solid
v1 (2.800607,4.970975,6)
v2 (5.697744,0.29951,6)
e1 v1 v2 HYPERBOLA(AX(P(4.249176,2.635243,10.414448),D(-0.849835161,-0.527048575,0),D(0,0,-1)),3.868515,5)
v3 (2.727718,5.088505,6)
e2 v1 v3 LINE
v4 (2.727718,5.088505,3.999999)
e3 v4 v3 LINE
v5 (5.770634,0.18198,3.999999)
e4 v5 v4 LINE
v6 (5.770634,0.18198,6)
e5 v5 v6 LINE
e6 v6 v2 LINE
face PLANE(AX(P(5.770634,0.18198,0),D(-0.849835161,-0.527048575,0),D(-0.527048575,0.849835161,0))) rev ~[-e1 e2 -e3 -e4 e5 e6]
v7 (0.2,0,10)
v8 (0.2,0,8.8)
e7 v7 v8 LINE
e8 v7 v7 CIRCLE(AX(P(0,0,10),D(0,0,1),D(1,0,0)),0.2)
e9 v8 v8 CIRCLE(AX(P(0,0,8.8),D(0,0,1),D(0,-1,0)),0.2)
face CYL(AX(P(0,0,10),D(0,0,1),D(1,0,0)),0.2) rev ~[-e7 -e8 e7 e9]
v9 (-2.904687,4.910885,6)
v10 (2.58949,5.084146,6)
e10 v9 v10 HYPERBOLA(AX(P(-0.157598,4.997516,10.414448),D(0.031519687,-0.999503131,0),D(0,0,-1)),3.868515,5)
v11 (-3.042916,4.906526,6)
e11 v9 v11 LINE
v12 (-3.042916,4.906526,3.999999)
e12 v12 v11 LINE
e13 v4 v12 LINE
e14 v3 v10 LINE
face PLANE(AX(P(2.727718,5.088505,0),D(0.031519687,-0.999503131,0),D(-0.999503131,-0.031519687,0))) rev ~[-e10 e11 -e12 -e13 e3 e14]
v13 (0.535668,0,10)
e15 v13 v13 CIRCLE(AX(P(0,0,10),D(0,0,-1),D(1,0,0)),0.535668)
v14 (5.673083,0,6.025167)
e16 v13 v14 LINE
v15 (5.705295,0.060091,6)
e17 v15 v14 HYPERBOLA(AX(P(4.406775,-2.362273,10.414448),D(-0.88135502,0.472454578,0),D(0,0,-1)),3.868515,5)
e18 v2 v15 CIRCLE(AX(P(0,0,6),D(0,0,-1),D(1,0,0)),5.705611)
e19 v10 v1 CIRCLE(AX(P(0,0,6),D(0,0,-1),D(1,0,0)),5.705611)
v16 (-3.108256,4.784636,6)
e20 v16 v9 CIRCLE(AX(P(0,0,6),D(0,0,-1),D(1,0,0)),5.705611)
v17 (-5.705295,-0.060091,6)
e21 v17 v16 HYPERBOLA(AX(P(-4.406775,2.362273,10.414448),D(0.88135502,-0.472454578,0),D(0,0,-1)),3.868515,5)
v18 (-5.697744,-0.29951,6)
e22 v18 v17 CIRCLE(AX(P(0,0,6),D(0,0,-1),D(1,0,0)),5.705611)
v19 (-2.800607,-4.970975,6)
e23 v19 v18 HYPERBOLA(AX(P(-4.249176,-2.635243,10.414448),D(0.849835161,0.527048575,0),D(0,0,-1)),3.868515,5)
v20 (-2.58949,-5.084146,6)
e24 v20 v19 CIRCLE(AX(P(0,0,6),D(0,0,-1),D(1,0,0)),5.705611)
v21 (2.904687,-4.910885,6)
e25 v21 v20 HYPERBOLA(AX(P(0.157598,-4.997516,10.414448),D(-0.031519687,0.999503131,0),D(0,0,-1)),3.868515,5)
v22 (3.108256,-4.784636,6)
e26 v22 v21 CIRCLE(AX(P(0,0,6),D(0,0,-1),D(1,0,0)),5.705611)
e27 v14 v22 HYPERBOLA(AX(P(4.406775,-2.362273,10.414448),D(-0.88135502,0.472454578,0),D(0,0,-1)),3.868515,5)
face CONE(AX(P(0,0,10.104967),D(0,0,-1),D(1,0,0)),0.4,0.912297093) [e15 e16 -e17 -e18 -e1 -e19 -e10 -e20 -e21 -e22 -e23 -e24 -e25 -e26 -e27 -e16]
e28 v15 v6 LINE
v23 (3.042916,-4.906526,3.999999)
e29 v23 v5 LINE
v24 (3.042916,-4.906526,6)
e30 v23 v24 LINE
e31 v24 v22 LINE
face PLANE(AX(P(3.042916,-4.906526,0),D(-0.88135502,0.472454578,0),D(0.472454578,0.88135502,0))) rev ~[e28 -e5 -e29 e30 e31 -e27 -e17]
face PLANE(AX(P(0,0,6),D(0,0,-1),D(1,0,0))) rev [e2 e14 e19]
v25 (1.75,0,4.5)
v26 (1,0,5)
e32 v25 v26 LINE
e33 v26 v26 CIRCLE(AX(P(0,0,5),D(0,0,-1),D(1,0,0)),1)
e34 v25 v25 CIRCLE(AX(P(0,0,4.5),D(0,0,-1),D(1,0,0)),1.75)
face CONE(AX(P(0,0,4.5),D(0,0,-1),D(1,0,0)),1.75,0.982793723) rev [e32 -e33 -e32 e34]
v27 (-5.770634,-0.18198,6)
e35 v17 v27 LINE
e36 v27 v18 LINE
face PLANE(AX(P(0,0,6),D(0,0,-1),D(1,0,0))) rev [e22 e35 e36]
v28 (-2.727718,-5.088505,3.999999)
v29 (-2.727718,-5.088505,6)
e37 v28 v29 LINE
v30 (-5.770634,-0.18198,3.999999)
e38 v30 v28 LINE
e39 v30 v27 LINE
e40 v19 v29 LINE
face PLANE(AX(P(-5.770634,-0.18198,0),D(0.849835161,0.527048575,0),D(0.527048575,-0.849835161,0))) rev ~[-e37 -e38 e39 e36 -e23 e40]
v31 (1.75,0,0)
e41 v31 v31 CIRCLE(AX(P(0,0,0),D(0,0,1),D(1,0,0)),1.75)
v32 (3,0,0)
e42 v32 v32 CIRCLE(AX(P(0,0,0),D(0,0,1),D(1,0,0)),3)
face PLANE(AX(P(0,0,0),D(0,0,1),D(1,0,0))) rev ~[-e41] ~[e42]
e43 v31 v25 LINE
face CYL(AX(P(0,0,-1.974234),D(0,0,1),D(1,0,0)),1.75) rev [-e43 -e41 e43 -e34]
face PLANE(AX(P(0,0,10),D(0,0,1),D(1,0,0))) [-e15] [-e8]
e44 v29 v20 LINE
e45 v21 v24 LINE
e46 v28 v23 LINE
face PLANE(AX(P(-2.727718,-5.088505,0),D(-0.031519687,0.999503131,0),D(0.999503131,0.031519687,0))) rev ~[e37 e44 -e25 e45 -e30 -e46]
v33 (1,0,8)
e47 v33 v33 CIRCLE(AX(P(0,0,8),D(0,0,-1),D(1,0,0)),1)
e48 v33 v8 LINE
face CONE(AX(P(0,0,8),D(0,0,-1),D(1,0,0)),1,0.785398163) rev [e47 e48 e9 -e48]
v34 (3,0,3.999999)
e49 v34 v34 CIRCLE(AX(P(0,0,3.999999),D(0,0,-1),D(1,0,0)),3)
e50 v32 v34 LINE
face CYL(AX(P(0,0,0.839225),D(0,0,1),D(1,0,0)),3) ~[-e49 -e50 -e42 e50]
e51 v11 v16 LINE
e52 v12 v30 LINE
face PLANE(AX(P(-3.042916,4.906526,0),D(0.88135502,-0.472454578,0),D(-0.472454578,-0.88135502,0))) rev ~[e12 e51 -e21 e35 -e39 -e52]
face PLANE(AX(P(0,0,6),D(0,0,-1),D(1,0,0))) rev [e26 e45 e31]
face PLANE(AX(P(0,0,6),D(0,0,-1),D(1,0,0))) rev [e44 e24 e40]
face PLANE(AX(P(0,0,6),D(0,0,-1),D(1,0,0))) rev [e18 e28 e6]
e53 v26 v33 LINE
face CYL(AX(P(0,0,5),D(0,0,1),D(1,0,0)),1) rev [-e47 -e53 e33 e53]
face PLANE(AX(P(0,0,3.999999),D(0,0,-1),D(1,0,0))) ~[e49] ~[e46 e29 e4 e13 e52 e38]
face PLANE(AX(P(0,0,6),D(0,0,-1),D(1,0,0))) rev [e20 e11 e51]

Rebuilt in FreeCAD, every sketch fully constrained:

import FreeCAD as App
import Part
import Sketcher

V = App.Vector
Q = App.Units.Quantity


def add_polygon(sketch, points):
    """Adds a closed chain of lines whose ends are joined by coincident constraints."""
    first, n = sketch.GeometryCount, len(points)
    for a, b in zip(points, points[1:] + points[:1]):
        sketch.addGeometry(Part.LineSegment(App.Vector(*a, 0), App.Vector(*b, 0)), False)
    for i in range(n):
        sketch.addConstraint(Sketcher.Constraint("Coincident", first + i, 2, first + (i + 1) % n, 1))

doc = App.newDocument("Part")
body = doc.addObject("PartDesign::Body", "Body")

# Sketch on XY plane
sketch1 = body.newObject("Sketcher::SketchObject", "Sketch")
sketch1.AttachmentSupport = (doc.getObject("XY_Plane"), [""])
sketch1.MapMode = "FlatFace"
add_polygon(sketch1, [(5.770634, 0.18198), (2.727718, 5.088505), (-3.042916, 4.906526), (-5.770634, -0.18198), (-2.727718, -5.088505), (3.042916, -4.906526)])  # lines 0-5
sketch1.addConstraint([
    Sketcher.Constraint("DistanceX", 1, 2, 3, 2, Q("0.315198 mm")),
    Sketcher.Constraint("DistanceX", 0, 2, 4, 2, Q("0.315198 mm")),
    Sketcher.Constraint("DistanceY", 2, 2, -1, 1, Q("0.18198 mm")),
    Sketcher.Constraint("DistanceY", -1, 1, 5, 2, Q("0.18198 mm")),
    Sketcher.Constraint("DistanceY", 1, 2, 0, 2, Q("0.181979 mm")),
    Sketcher.Constraint("DistanceX", 2, 2, 1, 2, Q("2.727718 mm")),
    Sketcher.Constraint("DistanceY", 3, 2, 1, 2, Q("9.995031 mm")),
    Sketcher.Constraint("DistanceY", 3, 2, 4, 2, Q("0.181979 mm")),
    Sketcher.Constraint("DistanceX", 2, 2, 4, 2, Q("8.81355 mm")),
    Sketcher.Constraint("DistanceX", 4, 2, 5, 2, Q("2.727718 mm")),
    Sketcher.Constraint("Distance", 0, Q("5.773502 mm")),
    Sketcher.Constraint("DistanceX", -1, 1, 0, 2, Q("2.727718 mm")),
])
pad1 = body.newObject("PartDesign::Pad", "Pad")
pad1.Profile = sketch1
pad1.Length = 10

# Sketch on XZ plane
sketch2 = body.newObject("Sketcher::SketchObject", "Sketch001")
sketch2.AttachmentSupport = (doc.getObject("XZ_Plane"), [""])
sketch2.MapMode = "FlatFace"
add_polygon(sketch2, [(3, 3.999999), (3, -2.32155), (7.670898, -2.32155), (7.670898, 3.999999)])  # lines 0-3
add_polygon(sketch2, [(0.4, 10.880456), (0.4, 10.104967), (5.705611, 6), (7.525738, 6), (7.525738, 10.880456)])  # lines 4-8
add_polygon(sketch2, [(0, 9), (0, -1.974234), (1.75, -1.974234), (1.75, 4.5), (1, 5), (1, 8)])  # lines 9-14
sketch2.addConstraint([
    Sketcher.Constraint("Vertical", 0),
    Sketcher.Constraint("Horizontal", 1),
    Sketcher.Constraint("Vertical", 2),
    Sketcher.Constraint("Horizontal", 3),
    Sketcher.Constraint("Vertical", 4),
    Sketcher.Constraint("Horizontal", 6),
    Sketcher.Constraint("Vertical", 7),
    Sketcher.Constraint("Horizontal", 8),
    Sketcher.Constraint("Vertical", 9),
    Sketcher.Constraint("Horizontal", 10),
    Sketcher.Constraint("Vertical", 11),
    Sketcher.Constraint("Vertical", 13),
    Sketcher.Constraint("PointOnObject", 9, 2, -2),
    Sketcher.Constraint("DistanceY", 13, 1, 13, 2, Q("3 mm")),
    Sketcher.Constraint("Angle", 14, Q("135 deg")),
    Sketcher.Constraint("DistanceX", -1, 1, 0, 2, Q("3 mm")),
    Sketcher.Constraint("DistanceY", -1, 1, 2, 2, Q("3.999999 mm")),
    Sketcher.Constraint("DistanceY", -1, 1, 5, 2, Q("6 mm")),
    Sketcher.Constraint("DistanceX", -1, 1, 12, 2, Q("1 mm")),
    Sketcher.Constraint("DistanceY", -1, 1, 12, 2, Q("5 mm")),
    Sketcher.Constraint("DistanceX", 10, 1, 10, 2, Q("1.75 mm")),
    Sketcher.Constraint("DistanceX", -1, 1, 4, 2, Q("0.4 mm")),
    Sketcher.Constraint("DistanceY", -1, 1, 11, 2, Q("4.5 mm")),
    Sketcher.Constraint("DistanceX", 1, 1, 1, 2, Q("4.670898 mm")),
    Sketcher.Constraint("DistanceY", 0, 2, 0, 1, Q("6.321549 mm")),
    Sketcher.Constraint("DistanceY", 4, 2, 4, 1, Q("0.775489 mm")),
    Sketcher.Constraint("DistanceX", 6, 1, 6, 2, Q("1.820127 mm")),
    Sketcher.Constraint("DistanceX", 8, 2, 8, 1, Q("7.125738 mm")),
    Sketcher.Constraint("DistanceY", 7, 1, 7, 2, Q("4.880456 mm")),
    Sketcher.Constraint("DistanceY", 9, 2, 9, 1, Q("10.974234 mm")),
])
groove = body.newObject("PartDesign::Groove", "Groove")
groove.Profile = sketch2
groove.ReferenceAxis = (sketch2, ["V_Axis"])
groove.Angle = 360

# Sketch on XY plane
sketch3 = body.newObject("Sketcher::SketchObject", "Sketch002")
sketch3.AttachmentSupport = (doc.getObject("XY_Plane"), [""])
sketch3.MapMode = "FlatFace"
sketch3.AttachmentOffset = App.Placement(V(0, 0, 10), App.Rotation())
sketch3.addGeometry(Part.Circle(V(0, 0, 0), V(0, 0, 1), 0.2), False)
sketch3.addConstraint([
    Sketcher.Constraint("Coincident", 0, 3, -1, 1),
    Sketcher.Constraint("Diameter", 0, Q("0.4 mm")),
])
pocket1 = body.newObject("PartDesign::Pocket", "Pocket")
pocket1.Profile = sketch3
pocket1.Type = "ThroughAll"

doc.recompute()
